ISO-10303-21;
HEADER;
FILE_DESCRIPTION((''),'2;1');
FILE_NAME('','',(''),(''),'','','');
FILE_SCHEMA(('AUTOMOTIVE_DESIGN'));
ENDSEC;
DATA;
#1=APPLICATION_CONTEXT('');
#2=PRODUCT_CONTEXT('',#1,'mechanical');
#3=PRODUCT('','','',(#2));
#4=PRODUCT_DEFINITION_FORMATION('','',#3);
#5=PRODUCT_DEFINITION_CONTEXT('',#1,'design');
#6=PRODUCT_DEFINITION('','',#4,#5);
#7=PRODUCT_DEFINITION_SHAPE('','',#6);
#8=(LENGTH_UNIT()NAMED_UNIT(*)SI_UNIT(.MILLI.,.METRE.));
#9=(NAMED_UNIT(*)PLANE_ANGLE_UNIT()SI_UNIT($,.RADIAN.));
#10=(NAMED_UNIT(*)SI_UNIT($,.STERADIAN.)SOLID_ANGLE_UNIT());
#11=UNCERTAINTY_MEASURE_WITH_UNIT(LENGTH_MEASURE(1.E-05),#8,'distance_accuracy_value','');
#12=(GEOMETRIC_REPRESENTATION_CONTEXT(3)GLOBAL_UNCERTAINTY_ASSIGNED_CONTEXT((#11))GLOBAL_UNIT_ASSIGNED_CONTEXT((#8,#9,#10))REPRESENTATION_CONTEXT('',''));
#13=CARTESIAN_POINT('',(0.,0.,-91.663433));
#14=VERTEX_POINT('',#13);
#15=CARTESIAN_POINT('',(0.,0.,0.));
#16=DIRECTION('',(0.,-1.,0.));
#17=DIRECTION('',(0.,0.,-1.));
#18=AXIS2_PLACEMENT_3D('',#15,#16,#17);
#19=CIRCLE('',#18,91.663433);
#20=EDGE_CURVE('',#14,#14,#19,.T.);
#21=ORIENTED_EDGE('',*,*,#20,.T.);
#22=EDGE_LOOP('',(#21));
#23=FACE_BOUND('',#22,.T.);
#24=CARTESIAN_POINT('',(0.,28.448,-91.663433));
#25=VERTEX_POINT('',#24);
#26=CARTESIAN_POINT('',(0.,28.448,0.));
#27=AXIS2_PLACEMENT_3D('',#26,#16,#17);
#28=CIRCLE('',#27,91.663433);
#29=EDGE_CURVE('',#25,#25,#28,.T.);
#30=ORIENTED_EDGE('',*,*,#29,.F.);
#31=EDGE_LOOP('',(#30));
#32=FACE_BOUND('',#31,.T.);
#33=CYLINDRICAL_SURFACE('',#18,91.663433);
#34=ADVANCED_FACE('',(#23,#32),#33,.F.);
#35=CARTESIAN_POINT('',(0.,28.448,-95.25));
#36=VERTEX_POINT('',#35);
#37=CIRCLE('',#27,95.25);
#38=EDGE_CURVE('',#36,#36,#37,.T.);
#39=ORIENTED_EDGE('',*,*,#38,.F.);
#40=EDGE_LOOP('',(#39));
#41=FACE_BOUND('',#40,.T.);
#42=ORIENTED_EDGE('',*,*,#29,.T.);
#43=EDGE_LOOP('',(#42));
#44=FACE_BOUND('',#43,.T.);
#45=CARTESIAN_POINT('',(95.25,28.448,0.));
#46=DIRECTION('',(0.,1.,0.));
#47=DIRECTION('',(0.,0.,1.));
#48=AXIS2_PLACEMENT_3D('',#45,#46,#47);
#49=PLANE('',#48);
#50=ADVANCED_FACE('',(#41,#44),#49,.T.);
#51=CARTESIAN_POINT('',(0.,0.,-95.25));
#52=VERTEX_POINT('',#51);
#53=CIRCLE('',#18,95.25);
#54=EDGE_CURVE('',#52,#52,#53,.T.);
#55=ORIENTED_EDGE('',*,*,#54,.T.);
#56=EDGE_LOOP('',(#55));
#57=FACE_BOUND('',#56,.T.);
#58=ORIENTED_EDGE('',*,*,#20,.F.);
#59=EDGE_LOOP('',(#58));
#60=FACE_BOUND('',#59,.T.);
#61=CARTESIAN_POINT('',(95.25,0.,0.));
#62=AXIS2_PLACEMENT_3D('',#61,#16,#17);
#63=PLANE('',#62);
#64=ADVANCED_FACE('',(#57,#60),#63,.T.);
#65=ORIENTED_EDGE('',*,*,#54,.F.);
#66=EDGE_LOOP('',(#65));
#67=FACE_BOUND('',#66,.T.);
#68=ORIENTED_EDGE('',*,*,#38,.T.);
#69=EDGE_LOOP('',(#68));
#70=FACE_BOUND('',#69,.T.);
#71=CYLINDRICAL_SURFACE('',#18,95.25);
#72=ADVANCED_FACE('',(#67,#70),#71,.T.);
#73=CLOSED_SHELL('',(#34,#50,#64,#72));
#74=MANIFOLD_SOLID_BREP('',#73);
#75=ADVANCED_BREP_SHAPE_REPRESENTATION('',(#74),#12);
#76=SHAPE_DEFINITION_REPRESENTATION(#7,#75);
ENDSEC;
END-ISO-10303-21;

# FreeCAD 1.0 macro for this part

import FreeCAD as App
import Part
import Sketcher
Q = App.Units.Quantity


def add_polygon(sketch, points):
    """Adds a closed chain of lines whose ends are joined by coincident constraints."""
    first, n = sketch.GeometryCount, len(points)
    for a, b in zip(points, points[1:] + points[:1]):
        sketch.addGeometry(Part.LineSegment(App.Vector(*a, 0), App.Vector(*b, 0)), False)
    for i in range(n):
        sketch.addConstraint(Sketcher.Constraint("Coincident", first + i, 2, first + (i + 1) % n, 1))

doc = App.newDocument("Part")
body = doc.addObject("PartDesign::Body", "Body")

sketch1 = doc.addObject("Sketcher::SketchObject", "Sketch")
body.addObject(sketch1)
sketch1.AttachmentSupport = (doc.XY_Plane, [""])
sketch1.MapMode = "FlatFace"
add_polygon(sketch1, [(91.663433, 28.448), (91.663433, 0), (95.25, 0), (95.25, 28.448)])
sketch1.addConstraint(Sketcher.Constraint("Vertical", 0))
sketch1.addConstraint(Sketcher.Constraint("Horizontal", 1))
sketch1.addConstraint(Sketcher.Constraint("Vertical", 2))
sketch1.addConstraint(Sketcher.Constraint("Horizontal", 3))
sketch1.addConstraint(Sketcher.Constraint("PointOnObject", 0, 2, -1))
sketch1.addConstraint(Sketcher.Constraint("DistanceY", 0, 2, 0, 1, Q("1.12 in")))
sketch1.addConstraint(Sketcher.Constraint("DistanceX", -1, 1, 1, 2, Q("3.75 in")))
sketch1.addConstraint(Sketcher.Constraint("DistanceX", 1, 1, 1, 2, 3.586567))
revolution = doc.addObject("PartDesign::Revolution", "Revolution")
body.addObject(revolution)
revolution.Profile = sketch1
revolution.ReferenceAxis = (sketch1, ["V_Axis"])
revolution.Angle = 360

doc.recompute()
